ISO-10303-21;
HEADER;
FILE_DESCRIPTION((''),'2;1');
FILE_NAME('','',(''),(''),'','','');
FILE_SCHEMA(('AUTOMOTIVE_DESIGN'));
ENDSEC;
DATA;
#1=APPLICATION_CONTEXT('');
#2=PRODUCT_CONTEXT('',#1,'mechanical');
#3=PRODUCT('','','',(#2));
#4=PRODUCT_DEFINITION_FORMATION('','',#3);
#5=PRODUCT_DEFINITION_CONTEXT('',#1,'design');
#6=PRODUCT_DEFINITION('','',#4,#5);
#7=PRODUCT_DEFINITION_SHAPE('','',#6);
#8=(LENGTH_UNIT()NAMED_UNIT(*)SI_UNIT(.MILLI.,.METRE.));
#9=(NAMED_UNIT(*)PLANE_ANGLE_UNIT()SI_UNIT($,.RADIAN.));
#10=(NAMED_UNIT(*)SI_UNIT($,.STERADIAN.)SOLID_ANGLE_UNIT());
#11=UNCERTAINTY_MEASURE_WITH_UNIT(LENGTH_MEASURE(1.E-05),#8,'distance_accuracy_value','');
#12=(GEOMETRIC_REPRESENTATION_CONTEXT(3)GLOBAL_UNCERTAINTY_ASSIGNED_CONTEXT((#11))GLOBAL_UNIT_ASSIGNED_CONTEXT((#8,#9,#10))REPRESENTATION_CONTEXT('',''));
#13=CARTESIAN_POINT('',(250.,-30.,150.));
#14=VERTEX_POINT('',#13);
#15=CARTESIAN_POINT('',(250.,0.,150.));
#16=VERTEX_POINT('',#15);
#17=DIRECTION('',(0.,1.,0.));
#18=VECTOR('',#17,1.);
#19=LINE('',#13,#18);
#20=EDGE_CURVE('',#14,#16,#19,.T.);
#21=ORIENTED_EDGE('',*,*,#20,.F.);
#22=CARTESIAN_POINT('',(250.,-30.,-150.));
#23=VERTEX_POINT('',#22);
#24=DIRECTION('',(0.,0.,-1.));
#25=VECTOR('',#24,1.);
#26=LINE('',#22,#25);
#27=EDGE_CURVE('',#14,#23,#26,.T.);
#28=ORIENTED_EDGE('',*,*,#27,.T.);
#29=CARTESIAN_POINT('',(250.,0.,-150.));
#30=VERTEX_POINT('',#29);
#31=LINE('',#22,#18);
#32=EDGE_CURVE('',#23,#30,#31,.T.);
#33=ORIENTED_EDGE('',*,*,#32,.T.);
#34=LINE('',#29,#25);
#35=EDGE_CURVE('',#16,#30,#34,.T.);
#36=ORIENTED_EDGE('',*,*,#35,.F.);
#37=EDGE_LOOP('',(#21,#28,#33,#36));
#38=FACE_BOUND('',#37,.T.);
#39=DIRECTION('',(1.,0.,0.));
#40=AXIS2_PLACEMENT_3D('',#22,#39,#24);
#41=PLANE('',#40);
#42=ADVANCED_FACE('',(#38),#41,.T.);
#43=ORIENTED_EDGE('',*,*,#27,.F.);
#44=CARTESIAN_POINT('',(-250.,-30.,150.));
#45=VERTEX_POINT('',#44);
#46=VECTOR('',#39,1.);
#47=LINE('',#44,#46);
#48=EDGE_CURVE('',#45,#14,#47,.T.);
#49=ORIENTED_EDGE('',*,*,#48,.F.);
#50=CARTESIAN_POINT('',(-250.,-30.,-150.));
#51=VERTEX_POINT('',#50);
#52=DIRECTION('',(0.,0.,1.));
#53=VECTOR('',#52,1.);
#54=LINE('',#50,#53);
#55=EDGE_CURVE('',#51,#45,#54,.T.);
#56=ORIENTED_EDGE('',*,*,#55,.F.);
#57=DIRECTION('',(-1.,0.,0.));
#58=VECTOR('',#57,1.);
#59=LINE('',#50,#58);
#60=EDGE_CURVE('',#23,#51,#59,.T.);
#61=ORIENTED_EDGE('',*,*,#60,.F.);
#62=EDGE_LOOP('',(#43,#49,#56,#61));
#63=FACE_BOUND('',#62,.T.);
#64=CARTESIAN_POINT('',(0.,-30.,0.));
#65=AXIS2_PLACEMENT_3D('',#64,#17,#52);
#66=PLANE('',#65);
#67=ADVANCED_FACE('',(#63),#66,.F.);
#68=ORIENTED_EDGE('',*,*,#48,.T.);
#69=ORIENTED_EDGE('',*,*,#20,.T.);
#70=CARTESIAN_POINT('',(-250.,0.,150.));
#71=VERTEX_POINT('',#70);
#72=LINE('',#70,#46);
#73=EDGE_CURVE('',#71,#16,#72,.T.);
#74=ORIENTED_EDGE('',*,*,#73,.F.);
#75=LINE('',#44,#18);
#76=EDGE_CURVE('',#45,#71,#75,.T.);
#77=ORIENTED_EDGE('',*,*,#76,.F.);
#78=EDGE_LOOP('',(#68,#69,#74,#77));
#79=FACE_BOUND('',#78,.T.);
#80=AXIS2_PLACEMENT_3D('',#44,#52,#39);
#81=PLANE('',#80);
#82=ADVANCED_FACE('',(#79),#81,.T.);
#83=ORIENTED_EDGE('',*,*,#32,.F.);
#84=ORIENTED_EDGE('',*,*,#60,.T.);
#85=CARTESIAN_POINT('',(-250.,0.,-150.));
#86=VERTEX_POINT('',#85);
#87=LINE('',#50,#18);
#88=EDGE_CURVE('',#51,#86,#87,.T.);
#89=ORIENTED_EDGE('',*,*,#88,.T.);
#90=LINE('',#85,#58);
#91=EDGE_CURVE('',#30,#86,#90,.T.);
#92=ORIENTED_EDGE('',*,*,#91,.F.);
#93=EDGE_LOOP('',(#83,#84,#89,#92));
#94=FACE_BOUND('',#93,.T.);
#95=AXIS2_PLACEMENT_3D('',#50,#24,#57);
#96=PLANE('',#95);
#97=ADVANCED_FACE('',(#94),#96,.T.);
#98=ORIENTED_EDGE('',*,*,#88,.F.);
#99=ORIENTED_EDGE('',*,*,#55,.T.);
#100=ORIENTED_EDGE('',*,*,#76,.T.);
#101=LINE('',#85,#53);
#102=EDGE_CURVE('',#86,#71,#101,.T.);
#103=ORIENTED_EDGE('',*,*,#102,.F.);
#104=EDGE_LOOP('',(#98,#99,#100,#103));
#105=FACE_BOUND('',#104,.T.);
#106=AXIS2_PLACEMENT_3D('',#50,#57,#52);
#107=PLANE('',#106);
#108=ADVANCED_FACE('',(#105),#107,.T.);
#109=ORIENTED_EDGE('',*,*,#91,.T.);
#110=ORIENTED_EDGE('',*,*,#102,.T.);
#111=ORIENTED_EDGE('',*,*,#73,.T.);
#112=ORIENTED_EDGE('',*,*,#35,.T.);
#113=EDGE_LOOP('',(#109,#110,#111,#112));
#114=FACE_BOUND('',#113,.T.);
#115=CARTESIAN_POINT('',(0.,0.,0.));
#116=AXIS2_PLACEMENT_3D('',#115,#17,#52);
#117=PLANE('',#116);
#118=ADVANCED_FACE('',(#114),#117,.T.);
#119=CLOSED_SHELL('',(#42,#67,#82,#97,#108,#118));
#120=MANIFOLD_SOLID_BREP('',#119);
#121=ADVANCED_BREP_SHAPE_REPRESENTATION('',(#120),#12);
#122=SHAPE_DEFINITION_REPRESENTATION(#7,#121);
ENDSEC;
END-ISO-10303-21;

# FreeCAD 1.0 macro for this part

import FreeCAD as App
import Part
import Sketcher
Q = App.Units.Quantity

doc = App.newDocument("Part")
body = doc.addObject("PartDesign::Body", "Body")

# Sketch on XZ plane
sketch1 = body.newObject("Sketcher::SketchObject", "Sketch")
sketch1.AttachmentSupport = (doc.getObject("XZ_Plane"), [""])
sketch1.MapMode = "FlatFace"
sketch1.addGeometry(Part.LineSegment(App.Vector(-250, -150, 0), App.Vector(-250, 150, 0)), False)
sketch1.addGeometry(Part.LineSegment(App.Vector(-250, 150, 0), App.Vector(250, 150, 0)), False)
sketch1.addGeometry(Part.LineSegment(App.Vector(250, 150, 0), App.Vector(250, -150, 0)), False)
sketch1.addGeometry(Part.LineSegment(App.Vector(250, -150, 0), App.Vector(-250, -150, 0)), False)
sketch1.addConstraint(Sketcher.Constraint("Coincident", 0, 2, 1, 1))
sketch1.addConstraint(Sketcher.Constraint("Coincident", 1, 2, 2, 1))
sketch1.addConstraint(Sketcher.Constraint("Coincident", 2, 2, 3, 1))
sketch1.addConstraint(Sketcher.Constraint("Coincident", 3, 2, 0, 1))
sketch1.addConstraint(Sketcher.Constraint("Vertical", 0))
sketch1.addConstraint(Sketcher.Constraint("Horizontal", 1))
sketch1.addConstraint(Sketcher.Constraint("Vertical", 2))
sketch1.addConstraint(Sketcher.Constraint("Horizontal", 3))
sketch1.addConstraint(Sketcher.Constraint("Symmetric", 0, 2, 2, 2, -1, 1))
sketch1.addConstraint(Sketcher.Constraint("DistanceX", 1, 1, 1, 2, Q("500 mm")))
sketch1.addConstraint(Sketcher.Constraint("DistanceY", 0, 1, 0, 2, Q("300 mm")))
pad1 = body.newObject("PartDesign::Pad", "Pad")
pad1.Profile = sketch1
pad1.Length = 30

doc.recompute()
